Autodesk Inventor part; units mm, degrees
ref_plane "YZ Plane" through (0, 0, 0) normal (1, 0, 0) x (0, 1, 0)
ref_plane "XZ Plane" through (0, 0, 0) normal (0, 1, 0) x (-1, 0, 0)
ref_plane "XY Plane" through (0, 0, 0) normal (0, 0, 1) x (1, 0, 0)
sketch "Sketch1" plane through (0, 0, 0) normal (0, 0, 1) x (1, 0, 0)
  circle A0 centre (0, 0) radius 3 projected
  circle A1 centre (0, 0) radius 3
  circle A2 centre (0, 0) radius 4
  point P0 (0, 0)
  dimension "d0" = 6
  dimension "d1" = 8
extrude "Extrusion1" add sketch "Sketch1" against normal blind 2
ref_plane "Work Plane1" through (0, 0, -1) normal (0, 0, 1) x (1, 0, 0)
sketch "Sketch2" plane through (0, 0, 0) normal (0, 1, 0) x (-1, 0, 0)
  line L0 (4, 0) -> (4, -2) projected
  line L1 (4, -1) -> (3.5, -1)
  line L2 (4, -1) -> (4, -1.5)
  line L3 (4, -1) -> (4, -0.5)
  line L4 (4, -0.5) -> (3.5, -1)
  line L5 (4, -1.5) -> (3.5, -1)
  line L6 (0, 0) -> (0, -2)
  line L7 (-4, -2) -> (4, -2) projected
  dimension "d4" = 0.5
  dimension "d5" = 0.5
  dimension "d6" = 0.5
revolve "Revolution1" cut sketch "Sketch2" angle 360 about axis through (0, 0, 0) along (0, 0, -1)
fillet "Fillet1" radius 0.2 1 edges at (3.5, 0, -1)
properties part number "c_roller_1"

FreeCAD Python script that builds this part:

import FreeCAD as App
import Part
import Sketcher


def edges_at(feature, points):
    """Names of the edges that pass closest to the given points."""
    edges = feature.Shape.Edges
    near = lambda p: min(range(len(edges)), key=lambda i: edges[i].distToShape(Part.Vertex(*p))[0])
    return sorted({f"Edge{near(p) + 1}" for p in points})

doc = App.newDocument("Part")
params = doc.addObject("Spreadsheet::Sheet", "Params")
for row, (alias, value) in enumerate([
    ("sketch1_diameter", "8 mm"),
    ("sketch1_diameter2", "6 mm"),
    ("pad1_length", "2 mm"),
    ("groove_angle", "360 deg"),
    ("fillet_radius", "0.2 mm"),
], start=1):
    params.set(f"A{row}", alias)
    params.set(f"B{row}", "=" + value)
    params.setAlias(f"B{row}", alias)

body = doc.addObject("PartDesign::Body", "Body")

sketch1 = body.newObject("Sketcher::SketchObject", "Sketch")
sketch1.AttachmentSupport = (doc.getObject("XY_Plane"), [""])
sketch1.MapMode = "FlatFace"
sketch1.addGeometry([
    Part.Circle(App.Vector(0, 0, 0), App.Vector(0, 0, 1), 4),
    Part.Circle(App.Vector(0, 0, 0), App.Vector(0, 0, 1), 3),
], False)
sketch1.addConstraint([
    Sketcher.Constraint("Coincident", 0, 3, -1, 1),
    Sketcher.Constraint("Coincident", 1, 3, -1, 1),
    Sketcher.Constraint("Diameter", 0, 8.0),
    Sketcher.Constraint("Diameter", 1, 6.0),
])
sketch1.setExpression("Constraints[2]", "Params.sketch1_diameter")
sketch1.setExpression("Constraints[3]", "Params.sketch1_diameter2")
pad1 = body.newObject("PartDesign::Pad", "Pad")
pad1.Profile = sketch1
pad1.setExpression("Length", "Params.pad1_length")
pad1.Reversed = True

sketch2 = body.newObject("Sketcher::SketchObject", "Sketch001")
sketch2.AttachmentSupport = (doc.getObject("XZ_Plane"), [""])
sketch2.MapMode = "FlatFace"
sketch2.addGeometry([
    Part.LineSegment(App.Vector(-4, -0.5, 0), App.Vector(-3.5, -1, 0)),
    Part.LineSegment(App.Vector(-3.5, -1, 0), App.Vector(-4, -1.5, 0)),
    Part.LineSegment(App.Vector(-4, -1.5, 0), App.Vector(-4, -0.5, 0)),
], False)
sketch2.addConstraint([
    Sketcher.Constraint("Coincident", 0, 2, 1, 1),
    Sketcher.Constraint("Coincident", 1, 2, 2, 1),
    Sketcher.Constraint("Coincident", 2, 2, 0, 1),
    Sketcher.Constraint("Vertical", 2),
    Sketcher.Constraint("Perpendicular", 0, 1),
    Sketcher.Constraint("Equal", 0, 1),
    Sketcher.Constraint("DistanceY", 2, 2, -1, 1, 0.5),
    Sketcher.Constraint("DistanceX", 1, 2, 0, 2, 0.5),
    Sketcher.Constraint("DistanceX", 1, 2, -1, 1, 4.0),
])
groove = body.newObject("PartDesign::Groove", "Groove")
groove.Profile = sketch2
groove.ReferenceAxis = (sketch2, ["V_Axis"])
groove.setExpression("Angle", "Params.groove_angle")
doc.recompute()

fillet = body.newObject("PartDesign::Fillet", "Fillet")
fillet.Base = (groove, edges_at(groove, [(3.5, 0, -1)]))
fillet.setExpression("Radius", "Params.fillet_radius")

doc.recompute()
